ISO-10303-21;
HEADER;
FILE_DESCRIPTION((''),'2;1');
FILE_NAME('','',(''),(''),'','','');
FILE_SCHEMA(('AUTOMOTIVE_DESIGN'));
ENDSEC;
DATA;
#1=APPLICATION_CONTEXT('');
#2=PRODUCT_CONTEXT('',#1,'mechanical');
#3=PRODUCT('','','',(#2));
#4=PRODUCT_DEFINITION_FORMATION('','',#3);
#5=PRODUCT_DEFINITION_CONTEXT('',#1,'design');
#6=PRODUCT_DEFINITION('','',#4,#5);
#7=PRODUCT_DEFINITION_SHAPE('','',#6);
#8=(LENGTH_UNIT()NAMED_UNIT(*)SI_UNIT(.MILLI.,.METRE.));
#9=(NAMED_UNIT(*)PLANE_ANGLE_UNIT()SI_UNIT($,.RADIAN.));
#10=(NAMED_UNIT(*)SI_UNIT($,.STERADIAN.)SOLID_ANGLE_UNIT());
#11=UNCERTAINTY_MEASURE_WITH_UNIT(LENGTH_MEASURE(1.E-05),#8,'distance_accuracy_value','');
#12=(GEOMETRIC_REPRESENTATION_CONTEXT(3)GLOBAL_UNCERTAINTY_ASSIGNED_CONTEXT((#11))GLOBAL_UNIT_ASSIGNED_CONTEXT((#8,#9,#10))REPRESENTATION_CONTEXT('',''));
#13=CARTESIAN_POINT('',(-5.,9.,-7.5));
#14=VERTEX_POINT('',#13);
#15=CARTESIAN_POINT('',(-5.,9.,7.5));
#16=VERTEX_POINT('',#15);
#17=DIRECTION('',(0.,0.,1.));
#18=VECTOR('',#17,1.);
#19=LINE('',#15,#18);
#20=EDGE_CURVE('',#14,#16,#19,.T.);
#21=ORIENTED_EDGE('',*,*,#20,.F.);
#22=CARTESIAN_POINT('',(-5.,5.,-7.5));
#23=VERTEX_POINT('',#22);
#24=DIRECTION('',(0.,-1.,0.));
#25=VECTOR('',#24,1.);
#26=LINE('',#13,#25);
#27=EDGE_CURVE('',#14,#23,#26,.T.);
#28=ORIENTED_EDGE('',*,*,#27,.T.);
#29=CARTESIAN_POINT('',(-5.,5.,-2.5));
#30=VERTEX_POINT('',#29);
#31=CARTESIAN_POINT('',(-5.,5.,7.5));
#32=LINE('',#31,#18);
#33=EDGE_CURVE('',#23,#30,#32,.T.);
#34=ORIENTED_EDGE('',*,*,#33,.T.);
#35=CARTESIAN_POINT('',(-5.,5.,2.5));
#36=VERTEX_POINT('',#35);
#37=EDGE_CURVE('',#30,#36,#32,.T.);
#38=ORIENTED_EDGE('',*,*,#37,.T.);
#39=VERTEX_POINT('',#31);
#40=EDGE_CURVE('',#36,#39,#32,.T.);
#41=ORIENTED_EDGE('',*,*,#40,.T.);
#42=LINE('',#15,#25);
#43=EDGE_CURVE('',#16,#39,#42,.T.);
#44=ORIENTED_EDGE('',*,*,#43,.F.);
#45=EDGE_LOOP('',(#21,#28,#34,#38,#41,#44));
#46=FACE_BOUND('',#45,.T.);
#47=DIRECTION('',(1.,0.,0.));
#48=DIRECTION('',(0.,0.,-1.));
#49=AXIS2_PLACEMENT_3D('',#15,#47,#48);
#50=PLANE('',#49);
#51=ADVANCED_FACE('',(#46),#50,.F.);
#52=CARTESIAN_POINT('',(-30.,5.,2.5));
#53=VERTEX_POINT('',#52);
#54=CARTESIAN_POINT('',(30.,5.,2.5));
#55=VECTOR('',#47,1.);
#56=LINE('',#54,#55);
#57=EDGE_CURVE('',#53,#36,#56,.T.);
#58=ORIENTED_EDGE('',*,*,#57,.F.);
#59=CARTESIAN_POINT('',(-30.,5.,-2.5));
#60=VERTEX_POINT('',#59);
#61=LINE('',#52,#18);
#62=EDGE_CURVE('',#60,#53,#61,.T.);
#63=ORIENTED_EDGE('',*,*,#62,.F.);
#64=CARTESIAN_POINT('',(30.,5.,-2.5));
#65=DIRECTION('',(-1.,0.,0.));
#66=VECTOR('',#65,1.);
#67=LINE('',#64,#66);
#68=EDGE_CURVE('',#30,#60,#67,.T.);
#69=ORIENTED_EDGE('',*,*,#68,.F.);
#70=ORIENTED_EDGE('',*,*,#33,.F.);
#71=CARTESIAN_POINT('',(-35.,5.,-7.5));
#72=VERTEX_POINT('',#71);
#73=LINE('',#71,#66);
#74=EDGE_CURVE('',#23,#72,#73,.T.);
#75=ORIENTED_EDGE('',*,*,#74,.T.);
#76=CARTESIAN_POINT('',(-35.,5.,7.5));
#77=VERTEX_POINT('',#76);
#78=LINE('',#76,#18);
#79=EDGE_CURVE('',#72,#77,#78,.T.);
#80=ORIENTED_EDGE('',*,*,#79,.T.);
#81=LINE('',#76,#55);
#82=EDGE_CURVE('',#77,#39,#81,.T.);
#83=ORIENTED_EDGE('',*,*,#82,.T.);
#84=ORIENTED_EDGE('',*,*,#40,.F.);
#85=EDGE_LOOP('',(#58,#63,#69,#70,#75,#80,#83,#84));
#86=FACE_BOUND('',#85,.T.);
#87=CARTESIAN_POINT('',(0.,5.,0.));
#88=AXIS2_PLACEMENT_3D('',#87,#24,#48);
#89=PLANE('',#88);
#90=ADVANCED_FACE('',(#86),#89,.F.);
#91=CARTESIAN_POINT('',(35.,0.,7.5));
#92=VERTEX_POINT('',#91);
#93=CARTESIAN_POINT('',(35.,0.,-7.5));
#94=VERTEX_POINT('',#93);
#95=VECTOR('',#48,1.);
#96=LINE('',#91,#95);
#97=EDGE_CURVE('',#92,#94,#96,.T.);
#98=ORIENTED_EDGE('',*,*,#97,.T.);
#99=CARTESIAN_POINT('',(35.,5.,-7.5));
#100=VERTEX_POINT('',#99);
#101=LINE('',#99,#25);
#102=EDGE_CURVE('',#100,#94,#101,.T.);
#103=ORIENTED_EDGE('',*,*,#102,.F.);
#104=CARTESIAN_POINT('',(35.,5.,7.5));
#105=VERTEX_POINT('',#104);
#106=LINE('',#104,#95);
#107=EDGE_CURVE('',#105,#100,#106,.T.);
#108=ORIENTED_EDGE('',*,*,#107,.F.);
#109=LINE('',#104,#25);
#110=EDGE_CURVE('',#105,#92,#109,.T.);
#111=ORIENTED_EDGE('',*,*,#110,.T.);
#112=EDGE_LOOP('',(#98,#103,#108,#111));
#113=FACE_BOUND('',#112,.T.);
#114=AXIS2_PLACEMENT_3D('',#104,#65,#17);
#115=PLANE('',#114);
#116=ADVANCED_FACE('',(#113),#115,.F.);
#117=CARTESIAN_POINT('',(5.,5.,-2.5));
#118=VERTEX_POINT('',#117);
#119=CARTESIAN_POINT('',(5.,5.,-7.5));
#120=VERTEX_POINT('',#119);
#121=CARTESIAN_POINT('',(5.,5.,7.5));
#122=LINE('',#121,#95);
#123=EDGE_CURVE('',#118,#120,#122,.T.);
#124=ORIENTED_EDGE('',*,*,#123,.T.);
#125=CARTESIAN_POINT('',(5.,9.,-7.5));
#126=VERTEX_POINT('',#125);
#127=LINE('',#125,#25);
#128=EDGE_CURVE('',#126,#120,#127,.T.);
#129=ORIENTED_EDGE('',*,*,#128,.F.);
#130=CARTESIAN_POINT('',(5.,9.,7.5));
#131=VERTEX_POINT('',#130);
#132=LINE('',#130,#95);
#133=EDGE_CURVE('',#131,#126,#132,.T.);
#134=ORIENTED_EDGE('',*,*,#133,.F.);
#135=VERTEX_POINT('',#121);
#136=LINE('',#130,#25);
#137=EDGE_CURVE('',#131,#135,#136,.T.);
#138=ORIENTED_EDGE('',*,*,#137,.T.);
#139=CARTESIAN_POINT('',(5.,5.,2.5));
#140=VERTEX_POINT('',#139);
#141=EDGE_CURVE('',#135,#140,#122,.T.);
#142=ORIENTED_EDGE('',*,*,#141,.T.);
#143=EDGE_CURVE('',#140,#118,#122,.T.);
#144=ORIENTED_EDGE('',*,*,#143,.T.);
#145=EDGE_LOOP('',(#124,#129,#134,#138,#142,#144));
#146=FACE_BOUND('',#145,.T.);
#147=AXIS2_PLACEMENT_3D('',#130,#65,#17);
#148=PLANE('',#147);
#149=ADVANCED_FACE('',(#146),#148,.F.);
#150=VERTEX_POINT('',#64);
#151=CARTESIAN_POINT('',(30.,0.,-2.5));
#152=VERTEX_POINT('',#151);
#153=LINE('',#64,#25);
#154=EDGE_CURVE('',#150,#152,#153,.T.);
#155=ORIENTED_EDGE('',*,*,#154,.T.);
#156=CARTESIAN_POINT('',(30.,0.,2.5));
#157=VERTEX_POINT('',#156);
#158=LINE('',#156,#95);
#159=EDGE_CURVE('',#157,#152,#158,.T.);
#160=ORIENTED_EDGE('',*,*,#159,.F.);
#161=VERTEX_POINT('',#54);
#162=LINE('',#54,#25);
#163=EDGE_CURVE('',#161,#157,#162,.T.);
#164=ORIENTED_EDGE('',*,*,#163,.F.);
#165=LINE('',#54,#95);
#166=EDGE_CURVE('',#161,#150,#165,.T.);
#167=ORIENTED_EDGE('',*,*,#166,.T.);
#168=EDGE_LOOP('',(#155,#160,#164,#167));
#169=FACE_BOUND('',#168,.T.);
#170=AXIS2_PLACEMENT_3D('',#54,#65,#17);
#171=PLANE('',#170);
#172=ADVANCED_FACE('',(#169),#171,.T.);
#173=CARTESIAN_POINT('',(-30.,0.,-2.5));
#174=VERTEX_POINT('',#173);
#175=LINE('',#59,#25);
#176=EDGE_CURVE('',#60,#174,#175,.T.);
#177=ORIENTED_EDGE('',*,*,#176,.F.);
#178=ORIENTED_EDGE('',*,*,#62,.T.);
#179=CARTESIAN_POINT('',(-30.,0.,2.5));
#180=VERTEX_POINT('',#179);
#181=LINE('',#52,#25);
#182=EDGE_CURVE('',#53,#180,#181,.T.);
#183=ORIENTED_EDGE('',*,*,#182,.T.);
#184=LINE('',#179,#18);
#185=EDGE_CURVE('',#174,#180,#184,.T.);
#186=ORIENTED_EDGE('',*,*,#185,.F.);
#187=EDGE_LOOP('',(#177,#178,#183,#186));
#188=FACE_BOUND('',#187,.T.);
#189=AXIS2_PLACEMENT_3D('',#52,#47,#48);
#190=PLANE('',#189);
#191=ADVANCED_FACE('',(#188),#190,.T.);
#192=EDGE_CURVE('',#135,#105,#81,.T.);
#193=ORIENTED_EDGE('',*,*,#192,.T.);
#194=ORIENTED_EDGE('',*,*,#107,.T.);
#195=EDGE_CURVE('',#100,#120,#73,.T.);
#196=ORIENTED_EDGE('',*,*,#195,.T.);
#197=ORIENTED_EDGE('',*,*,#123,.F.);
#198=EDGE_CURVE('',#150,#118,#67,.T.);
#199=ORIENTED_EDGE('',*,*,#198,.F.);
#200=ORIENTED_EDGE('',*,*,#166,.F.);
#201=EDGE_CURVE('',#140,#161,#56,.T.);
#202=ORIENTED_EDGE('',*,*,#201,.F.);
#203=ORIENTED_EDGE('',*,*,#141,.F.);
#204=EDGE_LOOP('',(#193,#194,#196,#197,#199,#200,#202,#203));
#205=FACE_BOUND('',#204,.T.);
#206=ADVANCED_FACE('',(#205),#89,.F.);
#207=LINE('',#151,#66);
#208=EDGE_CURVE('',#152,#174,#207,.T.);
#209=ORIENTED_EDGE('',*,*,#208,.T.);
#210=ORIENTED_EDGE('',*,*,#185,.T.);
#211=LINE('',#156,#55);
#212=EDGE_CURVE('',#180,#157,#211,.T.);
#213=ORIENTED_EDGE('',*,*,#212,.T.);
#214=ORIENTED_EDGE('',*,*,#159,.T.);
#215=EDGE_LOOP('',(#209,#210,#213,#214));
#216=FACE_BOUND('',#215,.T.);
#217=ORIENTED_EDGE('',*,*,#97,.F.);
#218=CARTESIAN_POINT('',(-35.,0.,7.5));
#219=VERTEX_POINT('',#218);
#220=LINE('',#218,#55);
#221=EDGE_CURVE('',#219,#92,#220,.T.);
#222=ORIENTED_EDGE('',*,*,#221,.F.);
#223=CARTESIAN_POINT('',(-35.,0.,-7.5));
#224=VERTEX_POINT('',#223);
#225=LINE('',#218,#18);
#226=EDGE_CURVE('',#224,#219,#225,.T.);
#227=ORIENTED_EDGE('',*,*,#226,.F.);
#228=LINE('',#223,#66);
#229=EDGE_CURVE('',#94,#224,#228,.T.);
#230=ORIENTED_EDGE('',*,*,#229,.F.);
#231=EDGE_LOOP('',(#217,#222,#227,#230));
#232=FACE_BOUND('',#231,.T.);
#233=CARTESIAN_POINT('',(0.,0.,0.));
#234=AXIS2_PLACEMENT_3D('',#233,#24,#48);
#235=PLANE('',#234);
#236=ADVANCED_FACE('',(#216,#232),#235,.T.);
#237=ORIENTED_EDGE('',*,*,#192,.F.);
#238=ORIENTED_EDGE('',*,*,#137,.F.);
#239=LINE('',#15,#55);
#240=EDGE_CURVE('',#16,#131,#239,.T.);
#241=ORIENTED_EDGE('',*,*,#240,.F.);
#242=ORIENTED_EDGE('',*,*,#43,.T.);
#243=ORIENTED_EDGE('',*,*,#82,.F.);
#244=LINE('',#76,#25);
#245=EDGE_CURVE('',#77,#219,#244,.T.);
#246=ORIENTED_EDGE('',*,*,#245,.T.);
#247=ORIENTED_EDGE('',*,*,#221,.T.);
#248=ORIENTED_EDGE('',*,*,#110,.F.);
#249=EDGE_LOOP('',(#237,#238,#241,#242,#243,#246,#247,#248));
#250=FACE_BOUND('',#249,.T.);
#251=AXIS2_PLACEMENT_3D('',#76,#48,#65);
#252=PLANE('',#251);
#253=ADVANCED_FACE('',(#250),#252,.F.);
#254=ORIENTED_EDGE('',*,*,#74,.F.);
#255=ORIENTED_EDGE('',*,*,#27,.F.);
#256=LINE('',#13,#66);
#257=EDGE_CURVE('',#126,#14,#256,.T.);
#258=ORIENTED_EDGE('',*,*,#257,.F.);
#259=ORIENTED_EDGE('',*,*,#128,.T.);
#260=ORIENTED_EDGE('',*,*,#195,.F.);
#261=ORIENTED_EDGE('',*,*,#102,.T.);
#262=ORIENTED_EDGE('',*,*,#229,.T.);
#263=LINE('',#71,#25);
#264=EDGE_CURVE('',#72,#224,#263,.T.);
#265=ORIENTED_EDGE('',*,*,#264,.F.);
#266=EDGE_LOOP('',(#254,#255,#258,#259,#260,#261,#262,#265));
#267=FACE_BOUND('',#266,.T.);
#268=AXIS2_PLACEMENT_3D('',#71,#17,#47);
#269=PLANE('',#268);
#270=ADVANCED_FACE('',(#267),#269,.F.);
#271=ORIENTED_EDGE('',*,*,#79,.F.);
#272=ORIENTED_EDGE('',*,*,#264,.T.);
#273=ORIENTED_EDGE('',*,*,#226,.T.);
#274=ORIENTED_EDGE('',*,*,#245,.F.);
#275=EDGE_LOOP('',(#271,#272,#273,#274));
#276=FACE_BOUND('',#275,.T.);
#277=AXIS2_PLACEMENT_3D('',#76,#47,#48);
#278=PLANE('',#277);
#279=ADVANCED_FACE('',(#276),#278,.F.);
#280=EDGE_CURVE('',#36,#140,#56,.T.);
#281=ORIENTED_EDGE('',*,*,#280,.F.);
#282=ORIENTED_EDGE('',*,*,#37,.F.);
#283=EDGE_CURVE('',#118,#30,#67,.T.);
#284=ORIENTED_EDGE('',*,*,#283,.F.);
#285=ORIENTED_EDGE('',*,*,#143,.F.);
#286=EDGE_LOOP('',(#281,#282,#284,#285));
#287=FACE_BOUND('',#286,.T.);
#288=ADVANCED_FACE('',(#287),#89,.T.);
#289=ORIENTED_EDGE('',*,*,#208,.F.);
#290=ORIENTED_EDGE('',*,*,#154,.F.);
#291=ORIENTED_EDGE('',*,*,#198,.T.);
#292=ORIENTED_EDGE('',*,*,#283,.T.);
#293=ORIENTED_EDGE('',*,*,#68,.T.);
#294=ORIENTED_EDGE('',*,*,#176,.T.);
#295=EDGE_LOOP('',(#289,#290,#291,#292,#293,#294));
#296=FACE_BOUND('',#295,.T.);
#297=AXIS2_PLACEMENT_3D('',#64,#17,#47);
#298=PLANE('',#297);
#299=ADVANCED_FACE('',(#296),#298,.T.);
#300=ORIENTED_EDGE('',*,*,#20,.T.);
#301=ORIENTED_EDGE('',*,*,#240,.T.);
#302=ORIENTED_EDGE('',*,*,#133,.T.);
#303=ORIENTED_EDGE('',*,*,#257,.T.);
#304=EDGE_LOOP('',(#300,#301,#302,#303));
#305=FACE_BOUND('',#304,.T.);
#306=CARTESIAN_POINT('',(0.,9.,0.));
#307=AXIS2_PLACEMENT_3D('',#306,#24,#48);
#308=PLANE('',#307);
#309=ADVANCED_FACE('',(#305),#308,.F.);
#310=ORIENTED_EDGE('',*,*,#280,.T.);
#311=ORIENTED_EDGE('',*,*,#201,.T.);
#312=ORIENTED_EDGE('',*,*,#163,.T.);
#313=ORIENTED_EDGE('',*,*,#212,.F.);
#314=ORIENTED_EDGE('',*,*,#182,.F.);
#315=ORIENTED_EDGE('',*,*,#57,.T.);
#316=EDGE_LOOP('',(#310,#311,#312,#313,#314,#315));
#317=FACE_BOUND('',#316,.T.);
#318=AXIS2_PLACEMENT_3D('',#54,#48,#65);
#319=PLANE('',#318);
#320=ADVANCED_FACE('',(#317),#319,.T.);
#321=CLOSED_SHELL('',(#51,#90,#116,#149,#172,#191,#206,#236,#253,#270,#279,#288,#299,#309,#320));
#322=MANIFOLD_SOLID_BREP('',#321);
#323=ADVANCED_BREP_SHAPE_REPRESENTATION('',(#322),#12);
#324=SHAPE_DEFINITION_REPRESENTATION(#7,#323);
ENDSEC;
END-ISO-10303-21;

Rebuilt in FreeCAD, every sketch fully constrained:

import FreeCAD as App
import Part
import Sketcher
from FreeCAD import Vector
Q = App.Units.Quantity


def add_polygon(sketch, points):
    """Adds a closed chain of lines whose ends are joined by coincident constraints."""
    first, n = sketch.GeometryCount, len(points)
    for a, b in zip(points, points[1:] + points[:1]):
        sketch.addGeometry(Part.LineSegment(App.Vector(*a, 0), App.Vector(*b, 0)), False)
    for i in range(n):
        sketch.addConstraint(Sketcher.Constraint("Coincident", first + i, 2, first + (i + 1) % n, 1))

doc = App.newDocument("Part")
body = doc.addObject("PartDesign::Body", "Body")

# Sketch on XZ plane
sketch1 = doc.addObject("Sketcher::SketchObject", "Sketch")
body.addObject(sketch1)
sketch1.AttachmentSupport = (doc.XZ_Plane, [""])
sketch1.MapMode = "FlatFace"
add_polygon(sketch1, [(-35, -8), (-35, 8), (35, 8), (35, -8)])  # lines 0-3
add_polygon(sketch1, [(30, 2), (-30, 2), (-30, -2), (30, -2)])  # lines 4-7
sketch1.addConstraint([
    Sketcher.Constraint("Vertical", 0),
    Sketcher.Constraint("Horizontal", 1),
    Sketcher.Constraint("Vertical", 2),
    Sketcher.Constraint("Horizontal", 3),
    Sketcher.Constraint("Horizontal", 4),
    Sketcher.Constraint("Vertical", 5),
    Sketcher.Constraint("Horizontal", 6),
    Sketcher.Constraint("Vertical", 7),
    Sketcher.Constraint("Symmetric", 0, 2, 2, 2, -1, 1),
    Sketcher.Constraint("Symmetric", 4, 2, 6, 2, -1, 1),
    Sketcher.Constraint("DistanceX", 1, 1, 1, 2, Q("70 mm")),
    Sketcher.Constraint("DistanceX", 4, 2, 4, 1, Q("60 mm")),
    Sketcher.Constraint("DistanceY", 0, 1, 0, 2, Q("15 mm")),
    Sketcher.Constraint("DistanceY", 5, 2, 5, 1, Q("5 mm")),
])
pad1 = doc.addObject("PartDesign::Pad", "Pad")
body.addObject(pad1)
pad1.Profile = sketch1
pad1.Length = 5
pad1.Reversed = True

# Sketch on XZ plane
sketch2 = doc.addObject("Sketcher::SketchObject", "Sketch001")
body.addObject(sketch2)
sketch2.AttachmentSupport = (doc.XZ_Plane, [""])
sketch2.MapMode = "FlatFace"
sketch2.AttachmentOffset = App.Placement(Vector(0, 0, -5), App.Rotation())
add_polygon(sketch2, [(-5, -8), (-5, 8), (5, 8), (5, -8)])  # lines 0-3
sketch2.addConstraint([
    Sketcher.Constraint("Vertical", 0),
    Sketcher.Constraint("Horizontal", 1),
    Sketcher.Constraint("Vertical", 2),
    Sketcher.Constraint("Horizontal", 3),
    Sketcher.Constraint("Symmetric", 0, 2, 2, 2, -1, 1),
    Sketcher.Constraint("DistanceX", 1, 1, 1, 2, Q("10 mm")),
    Sketcher.Constraint("DistanceY", 0, 1, 0, 2, Q("15 mm")),
])
pad2 = doc.addObject("PartDesign::Pad", "Pad001")
body.addObject(pad2)
pad2.Profile = sketch2
pad2.Length = 4
pad2.Reversed = True

doc.recompute()
